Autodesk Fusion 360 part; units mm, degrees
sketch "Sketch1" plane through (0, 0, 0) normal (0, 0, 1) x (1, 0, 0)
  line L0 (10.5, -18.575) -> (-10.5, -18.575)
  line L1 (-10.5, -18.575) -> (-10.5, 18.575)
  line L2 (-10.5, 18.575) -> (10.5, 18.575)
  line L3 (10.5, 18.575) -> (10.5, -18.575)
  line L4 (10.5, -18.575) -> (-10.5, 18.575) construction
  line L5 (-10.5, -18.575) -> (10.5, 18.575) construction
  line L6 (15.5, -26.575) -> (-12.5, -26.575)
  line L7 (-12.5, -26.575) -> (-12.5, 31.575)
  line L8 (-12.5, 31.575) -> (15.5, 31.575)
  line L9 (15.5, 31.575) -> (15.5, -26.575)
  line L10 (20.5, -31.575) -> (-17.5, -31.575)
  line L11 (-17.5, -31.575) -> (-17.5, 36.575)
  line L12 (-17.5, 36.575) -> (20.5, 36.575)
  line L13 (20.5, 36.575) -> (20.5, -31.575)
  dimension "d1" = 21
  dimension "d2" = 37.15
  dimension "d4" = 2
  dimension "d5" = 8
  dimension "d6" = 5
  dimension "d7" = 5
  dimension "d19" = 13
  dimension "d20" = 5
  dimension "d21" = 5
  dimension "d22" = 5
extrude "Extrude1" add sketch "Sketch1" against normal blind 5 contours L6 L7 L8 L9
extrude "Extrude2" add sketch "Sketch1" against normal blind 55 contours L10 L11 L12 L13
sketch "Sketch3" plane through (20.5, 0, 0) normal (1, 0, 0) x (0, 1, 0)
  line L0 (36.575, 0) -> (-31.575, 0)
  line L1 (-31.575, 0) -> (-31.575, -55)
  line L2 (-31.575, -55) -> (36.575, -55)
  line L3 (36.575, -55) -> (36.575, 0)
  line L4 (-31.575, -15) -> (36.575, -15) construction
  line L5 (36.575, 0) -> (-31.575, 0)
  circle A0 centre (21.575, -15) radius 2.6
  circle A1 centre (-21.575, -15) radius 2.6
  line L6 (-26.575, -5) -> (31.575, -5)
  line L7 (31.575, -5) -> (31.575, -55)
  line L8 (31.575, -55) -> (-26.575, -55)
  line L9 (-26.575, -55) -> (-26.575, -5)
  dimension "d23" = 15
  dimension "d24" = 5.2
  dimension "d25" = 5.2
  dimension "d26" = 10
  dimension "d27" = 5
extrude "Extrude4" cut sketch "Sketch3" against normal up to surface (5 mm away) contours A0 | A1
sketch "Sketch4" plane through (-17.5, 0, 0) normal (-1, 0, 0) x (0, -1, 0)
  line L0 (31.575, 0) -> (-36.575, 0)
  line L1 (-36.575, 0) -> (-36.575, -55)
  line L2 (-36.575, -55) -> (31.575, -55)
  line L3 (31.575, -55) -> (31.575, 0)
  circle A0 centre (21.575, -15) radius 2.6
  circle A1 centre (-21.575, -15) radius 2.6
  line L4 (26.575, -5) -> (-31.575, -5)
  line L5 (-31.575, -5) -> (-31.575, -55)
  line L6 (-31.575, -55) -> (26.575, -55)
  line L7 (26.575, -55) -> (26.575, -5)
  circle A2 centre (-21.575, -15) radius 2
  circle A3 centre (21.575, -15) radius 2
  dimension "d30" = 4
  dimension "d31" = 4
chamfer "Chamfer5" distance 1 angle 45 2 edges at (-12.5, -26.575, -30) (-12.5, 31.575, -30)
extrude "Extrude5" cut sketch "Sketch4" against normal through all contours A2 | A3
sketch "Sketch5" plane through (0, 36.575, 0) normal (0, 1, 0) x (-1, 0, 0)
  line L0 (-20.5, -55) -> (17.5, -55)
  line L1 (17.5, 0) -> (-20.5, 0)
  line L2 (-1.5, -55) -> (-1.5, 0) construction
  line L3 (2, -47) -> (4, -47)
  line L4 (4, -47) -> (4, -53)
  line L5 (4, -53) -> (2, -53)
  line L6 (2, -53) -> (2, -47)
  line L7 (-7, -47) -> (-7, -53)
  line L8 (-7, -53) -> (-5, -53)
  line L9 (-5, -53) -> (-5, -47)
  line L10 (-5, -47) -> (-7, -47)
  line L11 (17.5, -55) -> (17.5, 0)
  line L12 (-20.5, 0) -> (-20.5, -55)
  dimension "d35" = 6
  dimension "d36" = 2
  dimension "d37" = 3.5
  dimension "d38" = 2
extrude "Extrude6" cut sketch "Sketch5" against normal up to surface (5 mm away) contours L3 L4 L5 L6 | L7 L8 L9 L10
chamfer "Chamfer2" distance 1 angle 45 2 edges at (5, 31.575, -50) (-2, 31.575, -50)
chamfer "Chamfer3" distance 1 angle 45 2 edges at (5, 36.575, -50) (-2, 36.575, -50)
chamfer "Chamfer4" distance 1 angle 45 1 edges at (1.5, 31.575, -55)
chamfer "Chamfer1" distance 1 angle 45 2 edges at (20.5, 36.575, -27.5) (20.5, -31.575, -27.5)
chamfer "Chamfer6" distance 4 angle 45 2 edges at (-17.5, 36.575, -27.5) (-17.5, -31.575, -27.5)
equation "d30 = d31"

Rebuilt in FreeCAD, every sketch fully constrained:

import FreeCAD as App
import Part
import Sketcher
Q = App.Units.Quantity


def edges_at(feature, points):
    """Names of the edges that pass closest to the given points."""
    edges = feature.Shape.Edges
    near = lambda p: min(range(len(edges)), key=lambda i: edges[i].distToShape(Part.Vertex(*p))[0])
    return sorted({f"Edge{near(p) + 1}" for p in points})


def add_polygon(sketch, points):
    """Adds a closed chain of lines whose ends are joined by coincident constraints."""
    first, n = sketch.GeometryCount, len(points)
    for a, b in zip(points, points[1:] + points[:1]):
        sketch.addGeometry(Part.LineSegment(App.Vector(*a, 0), App.Vector(*b, 0)), False)
    for i in range(n):
        sketch.addConstraint(Sketcher.Constraint("Coincident", first + i, 2, first + (i + 1) % n, 1))

doc = App.newDocument("Part")
params = doc.addObject("Spreadsheet::Sheet", "Params")
for row, (alias, value) in enumerate([
    ("sketch1_width", "21 mm"),
    ("sketch1_height", "37.15 mm"),
    ("pad1_length", "5 mm"),
    ("sketch2_width", "38 mm"),
    ("sketch2_height", "68.15 mm"),
    ("pad2_length", "55 mm"),
    ("sketch3_diameter", "5.2 mm"),
    ("pocket1_length", "5 mm"),
    ("chamfer_size", "1 mm"),
    ("sketch4_diameter", "4 mm"),
    ("sketch5_width", "2 mm"),
    ("sketch5_height", "6 mm"),
    ("pocket3_length", "5 mm"),
    ("chamfer2_size", "1 mm"),
    ("chamfer3_size", "1 mm"),
    ("chamfer4_size", "1 mm"),
    ("chamfer5_size", "1 mm"),
    ("chamfer6_size", "4 mm"),
], start=1):
    params.set(f"A{row}", alias)
    params.set(f"B{row}", "=" + value)
    params.setAlias(f"B{row}", alias)

body = doc.addObject("PartDesign::Body", "Body")

# Sketch on XY plane
sketch1 = body.newObject("Sketcher::SketchObject", "Sketch")
sketch1.AttachmentSupport = (doc.getObject("XY_Plane"), [""])
sketch1.MapMode = "FlatFace"
add_polygon(sketch1, [(-12, -27), (16, -27), (16, 32), (-12, 32)])  # lines 0-3
add_polygon(sketch1, [(10, 19), (10, -19), (-10, -19), (-10, 19)])  # lines 4-7
sketch1.addConstraint([
    Sketcher.Constraint("Horizontal", 0),
    Sketcher.Constraint("Vertical", 1),
    Sketcher.Constraint("Horizontal", 2),
    Sketcher.Constraint("Vertical", 3),
    Sketcher.Constraint("Vertical", 4),
    Sketcher.Constraint("Horizontal", 5),
    Sketcher.Constraint("Vertical", 6),
    Sketcher.Constraint("Horizontal", 7),
    Sketcher.Constraint("Symmetric", 4, 2, 6, 2, -1, 1),
    Sketcher.Constraint("DistanceX", 5, 2, 5, 1, Q("21 mm")),
    Sketcher.Constraint("DistanceX", 4, 2, 0, 2, Q("5 mm")),
    Sketcher.Constraint("DistanceY", 0, 2, 4, 2, Q("8 mm")),
    Sketcher.Constraint("DistanceX", 3, 2, 5, 2, Q("2 mm")),
    Sketcher.Constraint("DistanceY", 6, 2, 2, 2, Q("13 mm")),
    Sketcher.Constraint("DistanceY", 4, 2, 4, 1, Q("37.15 mm")),
])
sketch1.setExpression("Constraints[17]", "Params.sketch1_width")
sketch1.setExpression("Constraints[22]", "Params.sketch1_height")
pad1 = body.newObject("PartDesign::Pad", "Pad")
pad1.Profile = sketch1
pad1.setExpression("Length", "Params.pad1_length")
pad1.Reversed = True

# Sketch on XY plane
sketch2 = body.newObject("Sketcher::SketchObject", "Sketch001")
sketch2.AttachmentSupport = (doc.getObject("XY_Plane"), [""])
sketch2.MapMode = "FlatFace"
add_polygon(sketch2, [(-18, -32), (20, -32), (20, 37), (-18, 37)])  # lines 0-3
add_polygon(sketch2, [(16, 32), (16, -27), (-12, -27), (-12, 32)])  # lines 4-7
sketch2.addConstraint([
    Sketcher.Constraint("Horizontal", 0),
    Sketcher.Constraint("Vertical", 1),
    Sketcher.Constraint("Horizontal", 2),
    Sketcher.Constraint("Vertical", 3),
    Sketcher.Constraint("Vertical", 4),
    Sketcher.Constraint("Horizontal", 5),
    Sketcher.Constraint("Vertical", 6),
    Sketcher.Constraint("Horizontal", 7),
    Sketcher.Constraint("DistanceX", 4, 2, 0, 2, Q("5 mm")),
    Sketcher.Constraint("DistanceY", 0, 2, 4, 2, Q("5 mm")),
    Sketcher.Constraint("DistanceX", 3, 2, 5, 2, Q("5 mm")),
    Sketcher.Constraint("DistanceY", 6, 2, 2, 2, Q("5 mm")),
    Sketcher.Constraint("DistanceX", 0, 1, 0, 2, Q("38 mm")),
    Sketcher.Constraint("DistanceY", 1, 1, 1, 2, Q("68.15 mm")),
    Sketcher.Constraint("DistanceX", -1, 1, 0, 2, Q("20.5 mm")),
    Sketcher.Constraint("DistanceY", 0, 2, -1, 1, Q("31.575 mm")),
])
sketch2.setExpression("Constraints[20]", "Params.sketch2_width")
sketch2.setExpression("Constraints[21]", "Params.sketch2_height")
pad2 = body.newObject("PartDesign::Pad", "Pad001")
pad2.Profile = sketch2
pad2.setExpression("Length", "Params.pad2_length")
pad2.Reversed = True

# Sketch on YZ plane
sketch3 = body.newObject("Sketcher::SketchObject", "Sketch002")
sketch3.AttachmentSupport = (doc.getObject("YZ_Plane"), [""])
sketch3.MapMode = "FlatFace"
sketch3.AttachmentOffset = App.Placement(App.Vector(0, 0, 20.5), App.Rotation())
sketch3.addGeometry([
    Part.Circle(App.Vector(21.6, -15, 0), App.Vector(0, 0, 1), 2.6),
    Part.Circle(App.Vector(-21.6, -15, 0), App.Vector(0, 0, 1), 2.6),
], False)
sketch3.addConstraint([
    Sketcher.Constraint("Equal", 0, 1),
    Sketcher.Constraint("Symmetric", 0, 3, 1, 3, -2),
    Sketcher.Constraint("Diameter", 0, Q("5.2 mm")),
    Sketcher.Constraint("DistanceY", 0, 3, -1, 1, Q("15 mm")),
    Sketcher.Constraint("DistanceX", 1, 3, 0, 3, Q("43.15 mm")),
])
sketch3.setExpression("Constraints[2]", "Params.sketch3_diameter")
pocket1 = body.newObject("PartDesign::Pocket", "Pocket")
pocket1.Profile = sketch3
pocket1.setExpression("Length", "Params.pocket1_length")
doc.recompute()

chamfer = body.newObject("PartDesign::Chamfer", "Chamfer")
chamfer.Base = (pocket1, edges_at(pocket1, [(-12.5, -26.575, -30), (-12.5, 31.575, -30)]))
chamfer.setExpression("Size", "Params.chamfer_size")

# Sketch on YZ plane
sketch4 = body.newObject("Sketcher::SketchObject", "Sketch003")
sketch4.AttachmentSupport = (doc.getObject("YZ_Plane"), [""])
sketch4.MapMode = "FlatFace"
sketch4.AttachmentOffset = App.Placement(App.Vector(0, 0, -17.5), App.Rotation())
sketch4.addGeometry([
    Part.Circle(App.Vector(21.6, -15, 0), App.Vector(0, 0, 1), 2),
    Part.Circle(App.Vector(-21.6, -15, 0), App.Vector(0, 0, 1), 2),
], False)
sketch4.addConstraint([
    Sketcher.Constraint("Equal", 0, 1),
    Sketcher.Constraint("Symmetric", 0, 3, 1, 3, -2),
    Sketcher.Constraint("Diameter", 0, Q("4 mm")),
    Sketcher.Constraint("DistanceY", 0, 3, -1, 1, Q("15 mm")),
    Sketcher.Constraint("DistanceX", 1, 3, 0, 3, Q("43.15 mm")),
])
sketch4.setExpression("Constraints[2]", "Params.sketch4_diameter")
pocket2 = body.newObject("PartDesign::Pocket", "Pocket001")
pocket2.Profile = sketch4
pocket2.Type = "ThroughAll"
pocket2.Reversed = True

# Sketch on XZ plane
sketch5 = body.newObject("Sketcher::SketchObject", "Sketch004")
sketch5.AttachmentSupport = (doc.getObject("XZ_Plane"), [""])
sketch5.MapMode = "FlatFace"
sketch5.AttachmentOffset = App.Placement(App.Vector(0, 0, -36.575), App.Rotation())
add_polygon(sketch5, [(-4, -47), (-2, -47), (-2, -53), (-4, -53)])  # lines 0-3
add_polygon(sketch5, [(5, -47), (7, -47), (7, -53), (5, -53)])  # lines 4-7
sketch5.addConstraint([
    Sketcher.Constraint("Horizontal", 0),
    Sketcher.Constraint("Vertical", 1),
    Sketcher.Constraint("Horizontal", 2),
    Sketcher.Constraint("Vertical", 3),
    Sketcher.Constraint("Horizontal", 4),
    Sketcher.Constraint("Vertical", 5),
    Sketcher.Constraint("Horizontal", 6),
    Sketcher.Constraint("Vertical", 7),
    Sketcher.Constraint("Horizontal", 3, 2, 4, 2),
    Sketcher.Constraint("Horizontal", 2, 2, 5, 2),
    Sketcher.Constraint("Equal", 2, 4),
    Sketcher.Constraint("DistanceX", 0, 1, 0, 2, Q("2 mm")),
    Sketcher.Constraint("DistanceY", 1, 2, 1, 1, Q("6 mm")),
    Sketcher.Constraint("DistanceX", 0, 2, -1, 1, Q("2 mm")),
    Sketcher.Constraint("DistanceY", 0, 2, -1, 1, Q("47 mm")),
    Sketcher.Constraint("DistanceX", -1, 1, 4, 2, Q("7 mm")),
])
sketch5.setExpression("Constraints[19]", "Params.sketch5_width")
sketch5.setExpression("Constraints[20]", "Params.sketch5_height")
pocket3 = body.newObject("PartDesign::Pocket", "Pocket002")
pocket3.Profile = sketch5
pocket3.setExpression("Length", "Params.pocket3_length")
pocket3.Reversed = True
doc.recompute()

chamfer2 = body.newObject("PartDesign::Chamfer", "Chamfer001")
chamfer2.Base = (pocket3, edges_at(pocket3, [(5, 31.575, -50), (-2, 31.575, -50)]))
chamfer2.setExpression("Size", "Params.chamfer2_size")
doc.recompute()

chamfer3 = body.newObject("PartDesign::Chamfer", "Chamfer002")
chamfer3.Base = (chamfer2, edges_at(chamfer2, [(5, 36.575, -50), (-2, 36.575, -50)]))
chamfer3.setExpression("Size", "Params.chamfer3_size")
doc.recompute()

chamfer4 = body.newObject("PartDesign::Chamfer", "Chamfer003")
chamfer4.Base = (chamfer3, edges_at(chamfer3, [(1.5, 31.575, -55)]))
chamfer4.setExpression("Size", "Params.chamfer4_size")
doc.recompute()

chamfer5 = body.newObject("PartDesign::Chamfer", "Chamfer004")
chamfer5.Base = (chamfer4, edges_at(chamfer4, [(20.5, 36.575, -27.5), (20.5, -31.575, -27.5)]))
chamfer5.setExpression("Size", "Params.chamfer5_size")
doc.recompute()

chamfer6 = body.newObject("PartDesign::Chamfer", "Chamfer005")
chamfer6.Base = (chamfer5, edges_at(chamfer5, [(-17.5, 36.575, -27.5), (-17.5, -31.575, -27.5)]))
chamfer6.setExpression("Size", "Params.chamfer6_size")

doc.recompute()
